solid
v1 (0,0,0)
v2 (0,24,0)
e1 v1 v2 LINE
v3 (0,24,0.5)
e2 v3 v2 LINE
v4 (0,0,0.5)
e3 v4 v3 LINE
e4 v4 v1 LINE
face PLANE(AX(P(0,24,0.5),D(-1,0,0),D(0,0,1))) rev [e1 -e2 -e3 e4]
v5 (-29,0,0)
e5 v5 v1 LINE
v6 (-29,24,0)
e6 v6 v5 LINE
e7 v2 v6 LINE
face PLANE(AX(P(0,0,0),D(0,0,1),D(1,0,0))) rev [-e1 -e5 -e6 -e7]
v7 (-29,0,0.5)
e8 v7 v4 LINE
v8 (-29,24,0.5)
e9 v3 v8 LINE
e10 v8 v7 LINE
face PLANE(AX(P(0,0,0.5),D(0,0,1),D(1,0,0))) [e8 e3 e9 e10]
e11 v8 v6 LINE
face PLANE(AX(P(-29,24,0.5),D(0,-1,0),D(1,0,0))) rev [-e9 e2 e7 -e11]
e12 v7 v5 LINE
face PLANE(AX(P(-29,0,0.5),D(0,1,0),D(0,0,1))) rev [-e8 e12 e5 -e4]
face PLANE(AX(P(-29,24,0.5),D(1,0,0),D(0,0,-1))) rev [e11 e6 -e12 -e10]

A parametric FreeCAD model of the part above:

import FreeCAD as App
import Part
import Sketcher

V = App.Vector

doc = App.newDocument("Part")
params = doc.addObject("Spreadsheet::Sheet", "Params")
for row, (alias, value) in enumerate([
    ("sketch1_width", "29 mm"),
    ("sketch1_height", "24 mm"),
    ("pad1_length", "0.5 mm"),
], start=1):
    params.set(f"A{row}", alias)
    params.set(f"B{row}", "=" + value)
    params.setAlias(f"B{row}", alias)

body = doc.addObject("PartDesign::Body", "Body")

# Sketch on XY plane
sketch1 = doc.addObject("Sketcher::SketchObject", "Sketch")
body.addObject(sketch1)
sketch1.AttachmentSupport = (doc.XY_Plane, [""])
sketch1.MapMode = "FlatFace"
sketch1.addGeometry([
    Part.LineSegment(V(-29, 24, 0), V(-29, 0, 0)),
    Part.LineSegment(V(-29, 0, 0), V(0, 0, 0)),
    Part.LineSegment(V(0, 0, 0), V(0, 24, 0)),
    Part.LineSegment(V(0, 24, 0), V(-29, 24, 0)),
], False)
sketch1.addConstraint([
    Sketcher.Constraint("Coincident", 0, 2, 1, 1),
    Sketcher.Constraint("Coincident", 1, 2, 2, 1),
    Sketcher.Constraint("Coincident", 2, 2, 3, 1),
    Sketcher.Constraint("Coincident", 3, 2, 0, 1),
    Sketcher.Constraint("Vertical", 0),
    Sketcher.Constraint("Horizontal", 1),
    Sketcher.Constraint("Vertical", 2),
    Sketcher.Constraint("Horizontal", 3),
    Sketcher.Constraint("Coincident", 1, 2, -1, 1),
    Sketcher.Constraint("DistanceX", 1, 1, 1, 2, 29.0),
    Sketcher.Constraint("DistanceY", 0, 2, 0, 1, 24.0),
])
sketch1.setExpression("Constraints[9]", "Params.sketch1_width")
sketch1.setExpression("Constraints[10]", "Params.sketch1_height")
pad1 = doc.addObject("PartDesign::Pad", "Pad")
body.addObject(pad1)
pad1.Profile = sketch1
pad1.setExpression("Length", "Params.pad1_length")

doc.recompute()
